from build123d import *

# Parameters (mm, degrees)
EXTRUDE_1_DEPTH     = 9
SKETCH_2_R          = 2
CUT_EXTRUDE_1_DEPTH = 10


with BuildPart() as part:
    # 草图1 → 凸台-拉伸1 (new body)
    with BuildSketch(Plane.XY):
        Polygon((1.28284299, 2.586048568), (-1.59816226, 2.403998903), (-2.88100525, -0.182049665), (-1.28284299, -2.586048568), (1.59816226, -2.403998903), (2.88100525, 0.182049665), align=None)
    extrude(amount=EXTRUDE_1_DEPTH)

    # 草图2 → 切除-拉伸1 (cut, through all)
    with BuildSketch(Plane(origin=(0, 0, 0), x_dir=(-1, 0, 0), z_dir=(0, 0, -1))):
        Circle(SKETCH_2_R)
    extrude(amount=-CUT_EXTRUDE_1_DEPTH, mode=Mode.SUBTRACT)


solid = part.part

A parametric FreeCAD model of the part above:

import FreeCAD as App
import Part
import Sketcher
from FreeCAD import Vector

doc = App.newDocument("Part")
body = doc.addObject("PartDesign::Body", "Body")

# Sketch on XY plane
sketch1 = body.newObject("Sketcher::SketchObject", "Sketch")
sketch1.AttachmentSupport = (doc.getObject("XY_Plane"), [""])
sketch1.MapMode = "FlatFace"
sketch1.addGeometry([
    Part.LineSegment(Vector(1.3, 2.6, 0), Vector(-1.6, 2.4, 0)),  # 0
    Part.LineSegment(Vector(-1.6, 2.4, 0), Vector(-2.9, -0.2, 0)),  # 1
    Part.LineSegment(Vector(-2.9, -0.2, 0), Vector(-1.3, -2.6, 0)),  # 2
    Part.LineSegment(Vector(-1.3, -2.6, 0), Vector(1.6, -2.4, 0)),  # 3
    Part.LineSegment(Vector(1.6, -2.4, 0), Vector(2.9, 0.2, 0)),  # 4
    Part.LineSegment(Vector(2.9, 0.2, 0), Vector(1.3, 2.6, 0)),  # 5
], False)
sketch1.addConstraint([
    Sketcher.Constraint("Coincident", 0, 2, 1, 1),
    Sketcher.Constraint("Coincident", 1, 2, 2, 1),
    Sketcher.Constraint("Coincident", 2, 2, 3, 1),
    Sketcher.Constraint("Coincident", 3, 2, 4, 1),
    Sketcher.Constraint("Coincident", 4, 2, 5, 1),
    Sketcher.Constraint("Coincident", 5, 2, 0, 1),
    Sketcher.Constraint("Symmetric", 0, 2, 3, 2, -1, 1),
    Sketcher.Constraint("Symmetric", 1, 2, 4, 2, -1, 1),
    Sketcher.Constraint("Symmetric", 2, 2, 5, 2, -1, 1),
    Sketcher.Constraint("Equal", 0, 1),
    Sketcher.Constraint("Equal", 1, 2),
    Sketcher.Constraint("DistanceY", -1, 1, 0, 2, 2.403999),
    Sketcher.Constraint("DistanceY", 2, 2, 1, 2, 2.403999),
    Sketcher.Constraint("DistanceY", 2, 2, 4, 2, 2.768098),
    Sketcher.Constraint("Distance", 0, 2.886751),
])
pad1 = body.newObject("PartDesign::Pad", "Pad")
pad1.Profile = sketch1
pad1.Length = 9

# Sketch on XY plane
sketch2 = body.newObject("Sketcher::SketchObject", "Sketch001")
sketch2.AttachmentSupport = (doc.getObject("XY_Plane"), [""])
sketch2.MapMode = "FlatFace"
sketch2.addGeometry(Part.Circle(Vector(0, 0, 0), Vector(0, 0, 1), 2), False)
sketch2.addConstraint([
    Sketcher.Constraint("Coincident", 0, 3, -1, 1),
    Sketcher.Constraint("Diameter", 0, 4.0),
])
pocket1 = body.newObject("PartDesign::Pocket", "Pocket")
pocket1.Profile = sketch2
pocket1.Type = "ThroughAll"
pocket1.Reversed = True

doc.recompute()
